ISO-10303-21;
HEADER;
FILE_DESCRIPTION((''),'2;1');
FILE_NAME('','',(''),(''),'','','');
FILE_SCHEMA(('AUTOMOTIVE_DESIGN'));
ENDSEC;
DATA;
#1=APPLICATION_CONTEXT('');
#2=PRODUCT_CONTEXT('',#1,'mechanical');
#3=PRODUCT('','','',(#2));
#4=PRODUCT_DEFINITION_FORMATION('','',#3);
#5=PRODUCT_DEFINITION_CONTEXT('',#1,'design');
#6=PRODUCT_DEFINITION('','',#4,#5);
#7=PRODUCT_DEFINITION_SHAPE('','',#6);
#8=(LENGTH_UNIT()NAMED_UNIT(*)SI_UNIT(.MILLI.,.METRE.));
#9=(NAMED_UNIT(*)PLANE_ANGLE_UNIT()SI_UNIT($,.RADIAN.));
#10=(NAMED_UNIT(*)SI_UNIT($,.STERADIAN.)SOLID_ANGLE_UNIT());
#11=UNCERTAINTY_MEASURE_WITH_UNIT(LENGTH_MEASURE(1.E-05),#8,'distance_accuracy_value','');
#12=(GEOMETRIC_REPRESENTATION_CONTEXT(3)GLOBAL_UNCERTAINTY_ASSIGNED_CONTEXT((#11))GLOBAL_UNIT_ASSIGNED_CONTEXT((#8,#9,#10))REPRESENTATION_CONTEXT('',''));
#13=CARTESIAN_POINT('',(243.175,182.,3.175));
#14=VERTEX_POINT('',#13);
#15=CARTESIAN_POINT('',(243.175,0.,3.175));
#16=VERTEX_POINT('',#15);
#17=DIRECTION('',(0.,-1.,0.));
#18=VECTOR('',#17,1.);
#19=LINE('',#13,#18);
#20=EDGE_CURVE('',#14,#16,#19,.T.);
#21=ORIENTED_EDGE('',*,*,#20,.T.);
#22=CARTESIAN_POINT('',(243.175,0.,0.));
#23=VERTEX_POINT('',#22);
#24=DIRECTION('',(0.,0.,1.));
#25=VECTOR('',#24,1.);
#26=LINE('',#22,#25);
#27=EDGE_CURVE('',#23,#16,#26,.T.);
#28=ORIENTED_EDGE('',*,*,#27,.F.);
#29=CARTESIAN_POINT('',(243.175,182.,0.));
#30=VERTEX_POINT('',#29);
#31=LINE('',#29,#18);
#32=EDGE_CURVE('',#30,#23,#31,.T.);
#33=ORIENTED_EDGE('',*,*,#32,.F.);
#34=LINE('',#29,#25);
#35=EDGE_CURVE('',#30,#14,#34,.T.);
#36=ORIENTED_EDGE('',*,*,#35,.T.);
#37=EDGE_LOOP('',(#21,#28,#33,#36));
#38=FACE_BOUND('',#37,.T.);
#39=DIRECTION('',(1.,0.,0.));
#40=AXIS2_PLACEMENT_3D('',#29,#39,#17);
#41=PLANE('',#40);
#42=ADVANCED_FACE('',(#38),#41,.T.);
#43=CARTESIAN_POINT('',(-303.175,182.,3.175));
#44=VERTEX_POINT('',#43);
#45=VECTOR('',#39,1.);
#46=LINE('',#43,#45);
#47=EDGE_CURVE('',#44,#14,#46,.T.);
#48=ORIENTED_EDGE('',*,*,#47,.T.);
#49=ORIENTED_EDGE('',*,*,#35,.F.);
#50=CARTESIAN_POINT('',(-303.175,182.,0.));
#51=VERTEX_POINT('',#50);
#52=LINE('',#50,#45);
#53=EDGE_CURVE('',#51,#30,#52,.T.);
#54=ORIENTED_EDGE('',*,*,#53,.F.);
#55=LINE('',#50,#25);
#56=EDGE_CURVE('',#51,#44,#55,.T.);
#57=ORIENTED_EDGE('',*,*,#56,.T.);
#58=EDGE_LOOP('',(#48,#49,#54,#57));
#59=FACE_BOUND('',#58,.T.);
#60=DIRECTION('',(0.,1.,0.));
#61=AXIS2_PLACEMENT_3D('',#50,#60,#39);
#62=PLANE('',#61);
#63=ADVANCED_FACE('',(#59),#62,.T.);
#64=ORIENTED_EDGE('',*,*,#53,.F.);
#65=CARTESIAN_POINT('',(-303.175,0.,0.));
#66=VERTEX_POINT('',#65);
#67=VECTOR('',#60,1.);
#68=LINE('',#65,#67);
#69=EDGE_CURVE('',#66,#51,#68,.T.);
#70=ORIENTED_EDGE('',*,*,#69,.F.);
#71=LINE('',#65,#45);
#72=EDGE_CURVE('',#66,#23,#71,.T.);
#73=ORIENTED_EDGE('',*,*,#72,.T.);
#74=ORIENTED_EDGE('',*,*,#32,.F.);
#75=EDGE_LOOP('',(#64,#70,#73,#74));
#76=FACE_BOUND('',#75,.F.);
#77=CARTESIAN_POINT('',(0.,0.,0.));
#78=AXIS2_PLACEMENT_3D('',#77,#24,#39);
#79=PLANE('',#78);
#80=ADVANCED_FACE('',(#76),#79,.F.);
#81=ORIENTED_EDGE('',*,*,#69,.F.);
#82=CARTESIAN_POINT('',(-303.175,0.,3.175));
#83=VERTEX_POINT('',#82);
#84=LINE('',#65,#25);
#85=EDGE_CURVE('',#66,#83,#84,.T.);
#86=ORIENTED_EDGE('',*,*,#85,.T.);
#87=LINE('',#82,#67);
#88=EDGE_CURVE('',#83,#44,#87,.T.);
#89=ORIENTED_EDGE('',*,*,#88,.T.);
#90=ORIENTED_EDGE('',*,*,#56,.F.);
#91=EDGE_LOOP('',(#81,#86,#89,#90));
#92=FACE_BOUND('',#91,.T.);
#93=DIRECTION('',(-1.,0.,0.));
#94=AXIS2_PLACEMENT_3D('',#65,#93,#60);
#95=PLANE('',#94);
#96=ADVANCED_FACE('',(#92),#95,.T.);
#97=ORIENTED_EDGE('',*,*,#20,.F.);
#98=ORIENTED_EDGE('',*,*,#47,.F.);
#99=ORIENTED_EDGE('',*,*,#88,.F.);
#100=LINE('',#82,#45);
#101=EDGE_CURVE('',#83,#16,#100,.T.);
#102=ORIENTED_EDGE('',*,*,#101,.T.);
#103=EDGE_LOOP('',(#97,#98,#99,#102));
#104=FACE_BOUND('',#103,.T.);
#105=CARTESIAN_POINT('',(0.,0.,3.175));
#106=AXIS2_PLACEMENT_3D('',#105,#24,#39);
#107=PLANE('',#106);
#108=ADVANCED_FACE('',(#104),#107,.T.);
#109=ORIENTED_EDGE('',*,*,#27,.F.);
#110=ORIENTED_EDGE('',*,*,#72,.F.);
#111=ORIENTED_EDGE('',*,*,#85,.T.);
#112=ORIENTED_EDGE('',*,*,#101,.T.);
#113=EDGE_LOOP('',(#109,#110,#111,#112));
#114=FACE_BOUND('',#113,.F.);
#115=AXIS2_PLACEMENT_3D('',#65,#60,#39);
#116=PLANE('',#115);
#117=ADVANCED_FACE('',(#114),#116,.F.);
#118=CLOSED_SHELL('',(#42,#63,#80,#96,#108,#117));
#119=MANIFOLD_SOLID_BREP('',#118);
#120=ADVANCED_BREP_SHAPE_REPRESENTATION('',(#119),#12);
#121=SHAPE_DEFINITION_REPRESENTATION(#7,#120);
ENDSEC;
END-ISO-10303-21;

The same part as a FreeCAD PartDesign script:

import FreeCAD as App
import Part
import Sketcher

V = App.Vector
Q = App.Units.Quantity

doc = App.newDocument("Part")
body = doc.addObject("PartDesign::Body", "Body")

# Sketch on XY plane
sketch1 = doc.addObject("Sketcher::SketchObject", "Sketch")
body.addObject(sketch1)
sketch1.AttachmentSupport = (doc.XY_Plane, [""])
sketch1.MapMode = "FlatFace"
sketch1.addGeometry([
    Part.LineSegment(V(243, 182, 0), V(-303, 182, 0)),
    Part.LineSegment(V(-303, 182, 0), V(-303, 0, 0)),
    Part.LineSegment(V(-303, 0, 0), V(243, 0, 0)),
    Part.LineSegment(V(243, 0, 0), V(243, 182, 0)),
], False)
sketch1.addConstraint([
    Sketcher.Constraint("Coincident", 0, 2, 1, 1),
    Sketcher.Constraint("Coincident", 1, 2, 2, 1),
    Sketcher.Constraint("Coincident", 2, 2, 3, 1),
    Sketcher.Constraint("Coincident", 3, 2, 0, 1),
    Sketcher.Constraint("Horizontal", 0),
    Sketcher.Constraint("Vertical", 1),
    Sketcher.Constraint("Horizontal", 2),
    Sketcher.Constraint("Vertical", 3),
    Sketcher.Constraint("PointOnObject", 1, 2, -1),
    Sketcher.Constraint("DistanceY", 1, 2, 1, 1, Q("182 mm")),
    Sketcher.Constraint("DistanceX", 0, 2, -1, 1, Q("303.175 mm")),
    Sketcher.Constraint("DistanceX", -1, 1, 2, 2, Q("243.175 mm")),
])
pad1 = doc.addObject("PartDesign::Pad", "Pad")
body.addObject(pad1)
pad1.Profile = sketch1
pad1.Length = 3.175

doc.recompute()
